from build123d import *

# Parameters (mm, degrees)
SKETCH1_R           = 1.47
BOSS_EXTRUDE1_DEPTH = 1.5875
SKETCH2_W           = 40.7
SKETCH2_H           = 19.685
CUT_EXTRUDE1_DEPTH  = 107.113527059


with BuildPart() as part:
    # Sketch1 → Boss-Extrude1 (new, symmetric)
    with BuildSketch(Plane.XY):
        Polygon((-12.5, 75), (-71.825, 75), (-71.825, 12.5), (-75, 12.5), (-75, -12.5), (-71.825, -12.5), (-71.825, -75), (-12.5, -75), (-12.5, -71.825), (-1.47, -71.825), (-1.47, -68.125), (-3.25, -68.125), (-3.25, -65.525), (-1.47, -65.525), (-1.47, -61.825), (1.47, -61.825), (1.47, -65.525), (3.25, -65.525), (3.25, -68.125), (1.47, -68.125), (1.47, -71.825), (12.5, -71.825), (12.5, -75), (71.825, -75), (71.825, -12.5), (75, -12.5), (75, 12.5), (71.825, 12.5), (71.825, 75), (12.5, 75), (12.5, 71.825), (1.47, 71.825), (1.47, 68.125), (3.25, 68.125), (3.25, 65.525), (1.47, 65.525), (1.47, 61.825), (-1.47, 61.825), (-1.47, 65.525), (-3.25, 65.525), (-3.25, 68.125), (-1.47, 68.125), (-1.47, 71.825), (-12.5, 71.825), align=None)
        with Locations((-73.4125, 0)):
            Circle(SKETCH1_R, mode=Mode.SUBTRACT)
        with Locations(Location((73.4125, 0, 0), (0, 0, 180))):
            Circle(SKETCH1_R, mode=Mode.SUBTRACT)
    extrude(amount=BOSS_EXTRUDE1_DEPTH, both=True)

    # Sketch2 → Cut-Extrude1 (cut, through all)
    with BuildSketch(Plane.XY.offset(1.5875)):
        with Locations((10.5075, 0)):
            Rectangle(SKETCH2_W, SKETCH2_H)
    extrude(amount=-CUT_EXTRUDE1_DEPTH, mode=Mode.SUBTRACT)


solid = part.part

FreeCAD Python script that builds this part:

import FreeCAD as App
import Part
import Sketcher

V = App.Vector


def add_polygon(sketch, points):
    """Adds a closed chain of lines whose ends are joined by coincident constraints."""
    first, n = sketch.GeometryCount, len(points)
    for a, b in zip(points, points[1:] + points[:1]):
        sketch.addGeometry(Part.LineSegment(App.Vector(*a, 0), App.Vector(*b, 0)), False)
    for i in range(n):
        sketch.addConstraint(Sketcher.Constraint("Coincident", first + i, 2, first + (i + 1) % n, 1))

doc = App.newDocument("Part")
body = doc.addObject("PartDesign::Body", "Body")

# Sketch on XY plane
sketch1 = body.newObject("Sketcher::SketchObject", "Sketch")
sketch1.AttachmentSupport = (doc.getObject("XY_Plane"), [""])
sketch1.MapMode = "FlatFace"
add_polygon(sketch1, [(-12.5, 75), (-71.8, 75), (-71.8, 12.5), (-75, 12.5), (-75, -12.5), (-71.8, -12.5), (-71.8, -75), (-12.5, -75), (-12.5, -71.8), (-1.5, -71.8), (-1.5, -68.1), (-3.2, -68.1), (-3.2, -65.5), (-1.5, -65.5), (-1.5, -61.8), (1.5, -61.8), (1.5, -65.5), (3.2, -65.5), (3.2, -68.1), (1.5, -68.1), (1.5, -71.8), (12.5, -71.8), (12.5, -75), (71.8, -75), (71.8, -12.5), (75, -12.5), (75, 12.5), (71.8, 12.5), (71.8, 75), (12.5, 75), (12.5, 71.8), (1.5, 71.8), (1.5, 68.1), (3.2, 68.1), (3.2, 65.5), (1.5, 65.5), (1.5, 61.8), (-1.5, 61.8), (-1.5, 65.5), (-3.2, 65.5), (-3.2, 68.1), (-1.5, 68.1), (-1.5, 71.8), (-12.5, 71.8)])  # lines 0-43
sketch1.addGeometry(Part.Circle(V(-73.4, 0, 0), V(0, 0, 1), 1.5), False)  # 44
sketch1.addGeometry(Part.Circle(V(73.4, 0, 0), V(0, 0, 1), 1.5), False)  # 45
sketch1.addConstraint([
    Sketcher.Constraint("Horizontal", 0),
    Sketcher.Constraint("Vertical", 1),
    Sketcher.Constraint("Horizontal", 2),
    Sketcher.Constraint("Vertical", 3),
    Sketcher.Constraint("Horizontal", 4),
    Sketcher.Constraint("Vertical", 5),
    Sketcher.Constraint("Horizontal", 6),
    Sketcher.Constraint("Vertical", 7),
    Sketcher.Constraint("Horizontal", 8),
    Sketcher.Constraint("Vertical", 9),
    Sketcher.Constraint("Horizontal", 10),
    Sketcher.Constraint("Vertical", 11),
    Sketcher.Constraint("Horizontal", 12),
    Sketcher.Constraint("Vertical", 13),
    Sketcher.Constraint("Horizontal", 14),
    Sketcher.Constraint("Vertical", 15),
    Sketcher.Constraint("Horizontal", 16),
    Sketcher.Constraint("Vertical", 17),
    Sketcher.Constraint("Horizontal", 18),
    Sketcher.Constraint("Vertical", 19),
    Sketcher.Constraint("Horizontal", 20),
    Sketcher.Constraint("Vertical", 21),
    Sketcher.Constraint("Horizontal", 22),
    Sketcher.Constraint("Vertical", 23),
    Sketcher.Constraint("Horizontal", 24),
    Sketcher.Constraint("Vertical", 25),
    Sketcher.Constraint("Horizontal", 26),
    Sketcher.Constraint("Vertical", 27),
    Sketcher.Constraint("Horizontal", 28),
    Sketcher.Constraint("Vertical", 29),
    Sketcher.Constraint("Horizontal", 30),
    Sketcher.Constraint("Vertical", 31),
    Sketcher.Constraint("Horizontal", 32),
    Sketcher.Constraint("Vertical", 33),
    Sketcher.Constraint("Horizontal", 34),
    Sketcher.Constraint("Vertical", 35),
    Sketcher.Constraint("Horizontal", 36),
    Sketcher.Constraint("Vertical", 37),
    Sketcher.Constraint("Horizontal", 38),
    Sketcher.Constraint("Vertical", 39),
    Sketcher.Constraint("Horizontal", 40),
    Sketcher.Constraint("Vertical", 41),
    Sketcher.Constraint("Horizontal", 42),
    Sketcher.Constraint("Vertical", 43),
    Sketcher.Constraint("Equal", 44, 45),
    Sketcher.Constraint("Symmetric", 44, 3, 45, 3, -1, 1),
    Sketcher.Constraint("Symmetric", 0, 2, 22, 2, -1, 1),
    Sketcher.Constraint("Symmetric", 2, 2, 24, 2, -1, 1),
    Sketcher.Constraint("Symmetric", 4, 2, 26, 2, -1, 1),
    Sketcher.Constraint("Symmetric", 6, 2, 28, 2, -1, 1),
    Sketcher.Constraint("Symmetric", 8, 2, 30, 2, -1, 1),
    Sketcher.Constraint("Symmetric", 10, 2, 32, 2, -1, 1),
    Sketcher.Constraint("Symmetric", 12, 2, 34, 2, -1, 1),
    Sketcher.Constraint("Symmetric", 14, 2, 36, 2, -1, 1),
    Sketcher.Constraint("Symmetric", 16, 2, 38, 2, -1, 1),
    Sketcher.Constraint("Symmetric", 18, 2, 40, 2, -1, 1),
    Sketcher.Constraint("Symmetric", 20, 2, 42, 2, -1, 1),
    Sketcher.Constraint("Symmetric", 12, 2, 15, 2, -2),
    Sketcher.Constraint("Symmetric", 10, 2, 17, 2, -2),
    Sketcher.Constraint("Symmetric", 8, 2, 19, 2, -2),
    Sketcher.Constraint("Symmetric", 6, 2, 21, 2, -2),
    Sketcher.Constraint("Symmetric", 4, 2, 23, 2, -2),
    Sketcher.Constraint("PointOnObject", 44, 3, -1),
    Sketcher.Constraint("Vertical", 9, 2, 12, 2),
    Sketcher.Constraint("Equal", 26, 7),
    Sketcher.Constraint("Equal", 9, 13),
    Sketcher.Constraint("Diameter", 44, 2.94),
    Sketcher.Constraint("DistanceY", 3, 2, 3, 1, 25.0),
    Sketcher.Constraint("DistanceY", 1, 2, 1, 1, 62.5),
    Sketcher.Constraint("DistanceY", 9, 1, 9, 2, 3.7),
    Sketcher.Constraint("DistanceY", 11, 1, 11, 2, 2.6),
    Sketcher.Constraint("DistanceX", 2, 2, -1, 1, 75.0),
    Sketcher.Constraint("DistanceX", 8, 1, 8, 2, 11.03),
    Sketcher.Constraint("DistanceX", 10, 2, 10, 1, 1.78),
    Sketcher.Constraint("DistanceX", 14, 1, 14, 2, 2.94),
    Sketcher.Constraint("DistanceX", 0, 2, 0, 1, 59.325),
    Sketcher.Constraint("DistanceX", 44, 3, 45, 3, 146.825),
])
pad1 = body.newObject("PartDesign::Pad", "Pad")
pad1.Profile = sketch1
pad1.Length = 3.175
pad1.Midplane = True

# Sketch on XY plane
sketch2 = body.newObject("Sketcher::SketchObject", "Sketch001")
sketch2.AttachmentSupport = (doc.getObject("XY_Plane"), [""])
sketch2.MapMode = "FlatFace"
sketch2.AttachmentOffset = App.Placement(V(0, 0, 1.5875), App.Rotation())
add_polygon(sketch2, [(-10, 10), (-10, -10), (31, -10), (31, 10)])  # lines 0-3
sketch2.addConstraint([
    Sketcher.Constraint("Vertical", 0),
    Sketcher.Constraint("Horizontal", 1),
    Sketcher.Constraint("Vertical", 2),
    Sketcher.Constraint("Horizontal", 3),
    Sketcher.Constraint("DistanceX", 1, 1, 1, 2, 40.7),
    Sketcher.Constraint("DistanceY", 0, 2, 0, 1, 19.685),
    Sketcher.Constraint("DistanceX", 0, 2, -1, 1, 9.8425),
    Sketcher.Constraint("DistanceY", 0, 2, -1, 1, 9.8425),
])
pocket1 = body.newObject("PartDesign::Pocket", "Pocket")
pocket1.Profile = sketch2
pocket1.Type = "ThroughAll"

doc.recompute()
